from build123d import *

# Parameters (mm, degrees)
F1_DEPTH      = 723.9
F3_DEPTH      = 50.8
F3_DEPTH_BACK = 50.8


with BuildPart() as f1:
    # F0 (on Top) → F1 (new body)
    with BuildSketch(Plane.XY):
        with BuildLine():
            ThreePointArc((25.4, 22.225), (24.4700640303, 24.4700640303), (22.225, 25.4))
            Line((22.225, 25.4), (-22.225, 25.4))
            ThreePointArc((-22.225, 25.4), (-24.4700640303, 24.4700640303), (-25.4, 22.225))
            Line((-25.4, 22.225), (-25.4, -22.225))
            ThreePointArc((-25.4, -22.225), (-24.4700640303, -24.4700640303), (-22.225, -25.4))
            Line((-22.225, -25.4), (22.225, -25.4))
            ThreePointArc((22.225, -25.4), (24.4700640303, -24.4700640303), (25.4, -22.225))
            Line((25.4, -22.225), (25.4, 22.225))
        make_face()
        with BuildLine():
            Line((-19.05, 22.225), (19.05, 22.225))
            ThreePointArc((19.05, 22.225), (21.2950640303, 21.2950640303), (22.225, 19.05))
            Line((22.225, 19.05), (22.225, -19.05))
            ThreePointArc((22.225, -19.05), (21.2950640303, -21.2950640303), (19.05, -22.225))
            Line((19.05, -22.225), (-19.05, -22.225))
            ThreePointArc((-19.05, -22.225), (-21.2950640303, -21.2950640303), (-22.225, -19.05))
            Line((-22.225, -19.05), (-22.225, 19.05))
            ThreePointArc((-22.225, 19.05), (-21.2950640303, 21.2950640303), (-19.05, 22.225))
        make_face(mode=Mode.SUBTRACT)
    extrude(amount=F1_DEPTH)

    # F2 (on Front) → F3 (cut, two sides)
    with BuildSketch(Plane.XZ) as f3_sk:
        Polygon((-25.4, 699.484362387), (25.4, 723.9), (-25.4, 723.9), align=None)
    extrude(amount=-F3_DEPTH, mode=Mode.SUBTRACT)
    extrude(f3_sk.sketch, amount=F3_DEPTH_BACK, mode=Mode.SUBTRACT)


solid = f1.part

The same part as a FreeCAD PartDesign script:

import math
import FreeCAD as App
import Part
import Sketcher
Q = App.Units.Quantity

doc = App.newDocument("Part")
body = doc.addObject("PartDesign::Body", "Body")

# Sketch on XY plane
sketch1 = doc.addObject("Sketcher::SketchObject", "Sketch")
body.addObject(sketch1)
sketch1.AttachmentSupport = (doc.XY_Plane, [""])
sketch1.MapMode = "FlatFace"
sketch1.addGeometry(Part.ArcOfCircle(Part.Circle(App.Vector(22.2, 22.2, 0), App.Vector(0, 0, 1), 3.2), math.radians(0), math.radians(90)), False)
sketch1.addGeometry(Part.LineSegment(App.Vector(22.2, 25.4, 0), App.Vector(-22.2, 25.4, 0)), False)
sketch1.addGeometry(Part.ArcOfCircle(Part.Circle(App.Vector(-22.2, 22.2, 0), App.Vector(0, 0, 1), 3.2), math.radians(90), math.radians(180)), False)
sketch1.addGeometry(Part.LineSegment(App.Vector(-25.4, 22.2, 0), App.Vector(-25.4, -22.2, 0)), False)
sketch1.addGeometry(Part.ArcOfCircle(Part.Circle(App.Vector(-22.2, -22.2, 0), App.Vector(0, 0, 1), 3.2), math.radians(180), math.radians(270)), False)
sketch1.addGeometry(Part.LineSegment(App.Vector(-22.2, -25.4, 0), App.Vector(22.2, -25.4, 0)), False)
sketch1.addGeometry(Part.ArcOfCircle(Part.Circle(App.Vector(22.2, -22.2, 0), App.Vector(0, 0, 1), 3.2), math.radians(-90), math.radians(0)), False)
sketch1.addGeometry(Part.LineSegment(App.Vector(25.4, -22.2, 0), App.Vector(25.4, 22.2, 0)), False)
sketch1.addGeometry(Part.ArcOfCircle(Part.Circle(App.Vector(-19.1, 19.1, 0), App.Vector(0, 0, 1), 3.2), math.radians(90), math.radians(180)), False)
sketch1.addGeometry(Part.LineSegment(App.Vector(-19.1, 22.2, 0), App.Vector(19.1, 22.2, 0)), False)
sketch1.addGeometry(Part.ArcOfCircle(Part.Circle(App.Vector(19.1, 19.1, 0), App.Vector(0, 0, 1), 3.2), math.radians(0), math.radians(90)), False)
sketch1.addGeometry(Part.LineSegment(App.Vector(22.2, 19.1, 0), App.Vector(22.2, -19.1, 0)), False)
sketch1.addGeometry(Part.ArcOfCircle(Part.Circle(App.Vector(19.1, -19.1, 0), App.Vector(0, 0, 1), 3.2), math.radians(-90), math.radians(0)), False)
sketch1.addGeometry(Part.LineSegment(App.Vector(19.1, -22.2, 0), App.Vector(-19.1, -22.2, 0)), False)
sketch1.addGeometry(Part.ArcOfCircle(Part.Circle(App.Vector(-19.1, -19.1, 0), App.Vector(0, 0, 1), 3.2), math.radians(180), math.radians(270)), False)
sketch1.addGeometry(Part.LineSegment(App.Vector(-22.2, -19.1, 0), App.Vector(-22.2, 19.1, 0)), False)
sketch1.addConstraint(Sketcher.Constraint("Tangent", 0, 2, 1, 1))
sketch1.addConstraint(Sketcher.Constraint("Tangent", 1, 2, 2, 1))
sketch1.addConstraint(Sketcher.Constraint("Tangent", 2, 2, 3, 1))
sketch1.addConstraint(Sketcher.Constraint("Tangent", 3, 2, 4, 1))
sketch1.addConstraint(Sketcher.Constraint("Tangent", 4, 2, 5, 1))
sketch1.addConstraint(Sketcher.Constraint("Tangent", 5, 2, 6, 1))
sketch1.addConstraint(Sketcher.Constraint("Tangent", 6, 2, 7, 1))
sketch1.addConstraint(Sketcher.Constraint("Tangent", 7, 2, 0, 1))
sketch1.addConstraint(Sketcher.Constraint("Tangent", 8, 1, 9, 1))
sketch1.addConstraint(Sketcher.Constraint("Tangent", 9, 2, 10, 2))
sketch1.addConstraint(Sketcher.Constraint("Tangent", 10, 1, 11, 1))
sketch1.addConstraint(Sketcher.Constraint("Tangent", 11, 2, 12, 2))
sketch1.addConstraint(Sketcher.Constraint("Tangent", 12, 1, 13, 1))
sketch1.addConstraint(Sketcher.Constraint("Tangent", 13, 2, 14, 2))
sketch1.addConstraint(Sketcher.Constraint("Tangent", 14, 1, 15, 1))
sketch1.addConstraint(Sketcher.Constraint("Tangent", 15, 2, 8, 2))
sketch1.addConstraint(Sketcher.Constraint("Horizontal", 1))
sketch1.addConstraint(Sketcher.Constraint("Vertical", 3))
sketch1.addConstraint(Sketcher.Constraint("Horizontal", 5))
sketch1.addConstraint(Sketcher.Constraint("Vertical", 7))
sketch1.addConstraint(Sketcher.Constraint("Horizontal", 9))
sketch1.addConstraint(Sketcher.Constraint("Vertical", 11))
sketch1.addConstraint(Sketcher.Constraint("Horizontal", 13))
sketch1.addConstraint(Sketcher.Constraint("Vertical", 15))
sketch1.addConstraint(Sketcher.Constraint("Equal", 0, 2))
sketch1.addConstraint(Sketcher.Constraint("Equal", 2, 4))
sketch1.addConstraint(Sketcher.Constraint("Equal", 4, 6))
sketch1.addConstraint(Sketcher.Constraint("Equal", 6, 8))
sketch1.addConstraint(Sketcher.Constraint("Equal", 8, 10))
sketch1.addConstraint(Sketcher.Constraint("Equal", 10, 12))
sketch1.addConstraint(Sketcher.Constraint("Equal", 12, 14))
sketch1.addConstraint(Sketcher.Constraint("Symmetric", 0, 3, 4, 3, -1, 1))
sketch1.addConstraint(Sketcher.Constraint("Symmetric", 8, 3, 12, 3, -1, 1))
sketch1.addConstraint(Sketcher.Constraint("Horizontal", 7, 2, 8, 1))
sketch1.addConstraint(Sketcher.Constraint("Vertical", 5, 2, 10, 1))
sketch1.addConstraint(Sketcher.Constraint("Equal", 5, 3))
sketch1.addConstraint(Sketcher.Constraint("DistanceX", 9, 1, 9, 2, Q("1.5 in")))
sketch1.addConstraint(Sketcher.Constraint("DistanceY", -1, 1, 0, 2, Q("1 in")))
pad1 = doc.addObject("PartDesign::Pad", "Pad")
body.addObject(pad1)
pad1.Profile = sketch1
pad1.Length = Q("28.5 in")

# Sketch on XZ plane
sketch2 = doc.addObject("Sketcher::SketchObject", "Sketch001")
body.addObject(sketch2)
sketch2.AttachmentSupport = (doc.XZ_Plane, [""])
sketch2.MapMode = "FlatFace"
sketch2.addGeometry(Part.LineSegment(App.Vector(-25, 699, 0), App.Vector(25, 724, 0)), False)
sketch2.addGeometry(Part.LineSegment(App.Vector(25, 724, 0), App.Vector(-25, 724, 0)), False)
sketch2.addGeometry(Part.LineSegment(App.Vector(-25, 724, 0), App.Vector(-25, 699, 0)), False)
sketch2.addConstraint(Sketcher.Constraint("Coincident", 0, 2, 1, 1))
sketch2.addConstraint(Sketcher.Constraint("Coincident", 1, 2, 2, 1))
sketch2.addConstraint(Sketcher.Constraint("Coincident", 2, 2, 0, 1))
sketch2.addConstraint(Sketcher.Constraint("Horizontal", 1))
sketch2.addConstraint(Sketcher.Constraint("Vertical", 2))
sketch2.addConstraint(Sketcher.Constraint("DistanceX", 1, 2, 1, 1, Q("2 in")))
sketch2.addConstraint(Sketcher.Constraint("DistanceX", -1, 1, 0, 2, Q("1 in")))
sketch2.addConstraint(Sketcher.Constraint("DistanceY", -1, 1, 0, 2, Q("28.5 in")))
sketch2.addConstraint(Sketcher.Constraint("Angle", 0, Q("25.67 deg")))
pocket1 = doc.addObject("PartDesign::Pocket", "Pocket")
body.addObject(pocket1)
pocket1.Profile = sketch2
pocket1.Type = "ThroughAll"
pocket1.Midplane = True

doc.recompute()
